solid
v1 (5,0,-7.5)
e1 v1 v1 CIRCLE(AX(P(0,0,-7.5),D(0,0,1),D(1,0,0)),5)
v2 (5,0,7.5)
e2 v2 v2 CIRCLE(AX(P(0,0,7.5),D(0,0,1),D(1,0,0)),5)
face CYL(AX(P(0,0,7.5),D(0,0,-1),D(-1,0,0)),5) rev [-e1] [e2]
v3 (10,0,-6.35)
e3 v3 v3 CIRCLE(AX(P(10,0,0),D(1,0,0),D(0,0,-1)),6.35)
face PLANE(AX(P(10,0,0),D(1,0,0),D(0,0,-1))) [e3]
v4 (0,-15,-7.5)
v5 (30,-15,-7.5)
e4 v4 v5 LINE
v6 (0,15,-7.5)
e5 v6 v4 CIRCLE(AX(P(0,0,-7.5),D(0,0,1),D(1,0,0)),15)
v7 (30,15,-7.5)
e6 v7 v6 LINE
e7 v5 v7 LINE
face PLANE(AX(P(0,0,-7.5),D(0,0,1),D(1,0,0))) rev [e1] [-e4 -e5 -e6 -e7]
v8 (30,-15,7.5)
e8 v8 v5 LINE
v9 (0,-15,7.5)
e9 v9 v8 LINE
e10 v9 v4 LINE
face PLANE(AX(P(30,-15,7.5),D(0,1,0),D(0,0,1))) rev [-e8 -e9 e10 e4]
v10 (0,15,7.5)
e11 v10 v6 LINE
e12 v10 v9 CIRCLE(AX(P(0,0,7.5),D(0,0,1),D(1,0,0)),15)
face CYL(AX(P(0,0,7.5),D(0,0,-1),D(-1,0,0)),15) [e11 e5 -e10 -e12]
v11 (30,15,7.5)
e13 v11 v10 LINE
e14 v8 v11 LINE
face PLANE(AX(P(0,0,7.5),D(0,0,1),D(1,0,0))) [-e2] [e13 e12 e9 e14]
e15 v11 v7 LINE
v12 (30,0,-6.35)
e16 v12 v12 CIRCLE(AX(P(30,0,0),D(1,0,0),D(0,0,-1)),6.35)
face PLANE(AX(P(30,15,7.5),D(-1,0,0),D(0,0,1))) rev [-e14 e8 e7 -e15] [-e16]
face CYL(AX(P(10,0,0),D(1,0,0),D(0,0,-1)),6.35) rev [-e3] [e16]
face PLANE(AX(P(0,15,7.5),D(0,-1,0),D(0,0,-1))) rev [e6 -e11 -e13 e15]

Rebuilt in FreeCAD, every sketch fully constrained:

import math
import FreeCAD as App
import Part
import Sketcher

V = App.Vector

doc = App.newDocument("Part")
body = doc.addObject("PartDesign::Body", "Body")

# Sketch on XY plane
sketch1 = body.newObject("Sketcher::SketchObject", "Sketch")
sketch1.AttachmentSupport = (doc.getObject("XY_Plane"), [""])
sketch1.MapMode = "FlatFace"
sketch1.addGeometry(Part.LineSegment(V(30, 15, 0), V(0, 15, 0)), False)
sketch1.addGeometry(Part.ArcOfCircle(Part.Circle(V(0, 0, 0), V(0, 0, 1), 15), math.radians(90), math.radians(270)), False)
sketch1.addGeometry(Part.LineSegment(V(0, -15, 0), V(30, -15, 0)), False)
sketch1.addGeometry(Part.LineSegment(V(30, -15, 0), V(30, 15, 0)), False)
sketch1.addGeometry(Part.Circle(V(0, 0, 0), V(0, 0, 1), 5), False)
sketch1.addConstraint(Sketcher.Constraint("Tangent", 0, 2, 1, 1))
sketch1.addConstraint(Sketcher.Constraint("Tangent", 1, 2, 2, 1))
sketch1.addConstraint(Sketcher.Constraint("Coincident", 2, 2, 3, 1))
sketch1.addConstraint(Sketcher.Constraint("Coincident", 3, 2, 0, 1))
sketch1.addConstraint(Sketcher.Constraint("Horizontal", 0))
sketch1.addConstraint(Sketcher.Constraint("Horizontal", 2))
sketch1.addConstraint(Sketcher.Constraint("Vertical", 3))
sketch1.addConstraint(Sketcher.Constraint("Coincident", 1, 3, -1, 1))
sketch1.addConstraint(Sketcher.Constraint("Coincident", 4, 3, -1, 1))
sketch1.addConstraint(Sketcher.Constraint("Equal", 2, 3))
sketch1.addConstraint(Sketcher.Constraint("Diameter", 4, 10.0))
sketch1.addConstraint(Sketcher.Constraint("Radius", 1, 15.0))
pad1 = body.newObject("PartDesign::Pad", "Pad")
pad1.Profile = sketch1
pad1.Length = 15
pad1.Midplane = True

# Sketch on YZ plane
sketch2 = body.newObject("Sketcher::SketchObject", "Sketch001")
sketch2.AttachmentSupport = (doc.getObject("YZ_Plane"), [""])
sketch2.MapMode = "FlatFace"
sketch2.AttachmentOffset = App.Placement(V(0, 0, 30), App.Rotation())
sketch2.addGeometry(Part.Circle(V(0, 0, 0), V(0, 0, 1), 6.35), False)
sketch2.addConstraint(Sketcher.Constraint("Coincident", 0, 3, -1, 1))
sketch2.addConstraint(Sketcher.Constraint("Diameter", 0, 12.7))
pocket1 = body.newObject("PartDesign::Pocket", "Pocket")
pocket1.Profile = sketch2
pocket1.Length = 20

doc.recompute()
